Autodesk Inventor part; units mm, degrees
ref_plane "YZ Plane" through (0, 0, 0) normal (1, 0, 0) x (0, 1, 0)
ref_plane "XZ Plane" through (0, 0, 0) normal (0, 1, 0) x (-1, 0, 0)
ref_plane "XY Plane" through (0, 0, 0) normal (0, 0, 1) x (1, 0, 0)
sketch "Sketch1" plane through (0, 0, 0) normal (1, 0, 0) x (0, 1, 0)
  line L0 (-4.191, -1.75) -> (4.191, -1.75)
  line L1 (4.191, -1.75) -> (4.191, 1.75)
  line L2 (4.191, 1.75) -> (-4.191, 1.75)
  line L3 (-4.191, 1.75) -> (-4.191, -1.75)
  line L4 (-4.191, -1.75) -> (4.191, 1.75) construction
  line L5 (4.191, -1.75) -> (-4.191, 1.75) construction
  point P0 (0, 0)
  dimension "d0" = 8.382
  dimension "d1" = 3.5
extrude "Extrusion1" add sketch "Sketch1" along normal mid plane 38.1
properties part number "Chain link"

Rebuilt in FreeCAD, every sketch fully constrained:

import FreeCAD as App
import Part
import Sketcher
from FreeCAD import Vector
Q = App.Units.Quantity

doc = App.newDocument("Part")
params = doc.addObject("Spreadsheet::Sheet", "Params")
for row, (alias, value) in enumerate([
    ("sketch1_width", "0.33 in"),
    ("pad1_length", "1.5 in"),
], start=1):
    params.set(f"A{row}", alias)
    params.set(f"B{row}", "=" + value)
    params.setAlias(f"B{row}", alias)

body = doc.addObject("PartDesign::Body", "Body")

# Sketch on YZ plane
sketch1 = body.newObject("Sketcher::SketchObject", "Sketch")
sketch1.AttachmentSupport = (doc.getObject("YZ_Plane"), [""])
sketch1.MapMode = "FlatFace"
sketch1.addGeometry([
    Part.LineSegment(Vector(-4.2, 1.8, 0), Vector(-4.2, -1.8, 0)),
    Part.LineSegment(Vector(-4.2, -1.8, 0), Vector(4.2, -1.8, 0)),
    Part.LineSegment(Vector(4.2, -1.8, 0), Vector(4.2, 1.8, 0)),
    Part.LineSegment(Vector(4.2, 1.8, 0), Vector(-4.2, 1.8, 0)),
], False)
sketch1.addConstraint([
    Sketcher.Constraint("Coincident", 0, 2, 1, 1),
    Sketcher.Constraint("Coincident", 1, 2, 2, 1),
    Sketcher.Constraint("Coincident", 2, 2, 3, 1),
    Sketcher.Constraint("Coincident", 3, 2, 0, 1),
    Sketcher.Constraint("Vertical", 0),
    Sketcher.Constraint("Horizontal", 1),
    Sketcher.Constraint("Vertical", 2),
    Sketcher.Constraint("Horizontal", 3),
    Sketcher.Constraint("Symmetric", 0, 2, 2, 2, -1, 1),
    Sketcher.Constraint("DistanceX", 1, 1, 1, 2, Q("0.33 in")),
    Sketcher.Constraint("DistanceY", 0, 2, 0, 1, Q("0.1378 in")),
])
sketch1.setExpression("Constraints[9]", "Params.sketch1_width")
pad1 = body.newObject("PartDesign::Pad", "Pad")
pad1.Profile = sketch1
pad1.setExpression("Length", "Params.pad1_length")
pad1.Midplane = True

doc.recompute()
